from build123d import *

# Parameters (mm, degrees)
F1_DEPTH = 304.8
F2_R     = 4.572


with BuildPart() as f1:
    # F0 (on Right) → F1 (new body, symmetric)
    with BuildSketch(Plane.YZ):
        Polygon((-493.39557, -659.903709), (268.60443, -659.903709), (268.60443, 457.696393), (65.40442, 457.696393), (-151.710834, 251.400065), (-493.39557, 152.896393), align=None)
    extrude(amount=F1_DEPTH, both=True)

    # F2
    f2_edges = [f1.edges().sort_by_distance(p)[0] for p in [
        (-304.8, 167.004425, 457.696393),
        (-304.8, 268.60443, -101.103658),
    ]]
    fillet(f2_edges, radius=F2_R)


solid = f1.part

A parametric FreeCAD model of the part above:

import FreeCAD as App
import Part
import Sketcher

V = App.Vector
Q = App.Units.Quantity


def edges_at(feature, points):
    """Names of the edges that pass closest to the given points."""
    edges = feature.Shape.Edges
    near = lambda p: min(range(len(edges)), key=lambda i: edges[i].distToShape(Part.Vertex(*p))[0])
    return sorted({f"Edge{near(p) + 1}" for p in points})


def add_polygon(sketch, points):
    """Adds a closed chain of lines whose ends are joined by coincident constraints."""
    first, n = sketch.GeometryCount, len(points)
    for a, b in zip(points, points[1:] + points[:1]):
        sketch.addGeometry(Part.LineSegment(App.Vector(*a, 0), App.Vector(*b, 0)), False)
    for i in range(n):
        sketch.addConstraint(Sketcher.Constraint("Coincident", first + i, 2, first + (i + 1) % n, 1))

doc = App.newDocument("Part")
params = doc.addObject("Spreadsheet::Sheet", "Params")
for row, (alias, value) in enumerate([
    ("sketch1_width", "30 in"),
    ("pad1_length", "24 in"),
    ("fillet_radius", "0.18 in"),
], start=1):
    params.set(f"A{row}", alias)
    params.set(f"B{row}", "=" + value)
    params.setAlias(f"B{row}", alias)

body = doc.addObject("PartDesign::Body", "Body")

sketch1 = doc.addObject("Sketcher::SketchObject", "Sketch")
body.addObject(sketch1)
sketch1.AttachmentSupport = (doc.YZ_Plane, [""])
sketch1.MapMode = "FlatFace"
add_polygon(sketch1, [(-493, -660), (269, -660), (269, 458), (65, 458), (-152, 251), (-493, 153)])
sketch1.addConstraint([
    Sketcher.Constraint("Horizontal", 0),
    Sketcher.Constraint("Vertical", 1),
    Sketcher.Constraint("Horizontal", 2),
    Sketcher.Constraint("Vertical", 5),
    Sketcher.Constraint("DistanceX", 0, 1, 0, 2, Q("30 in")),
    Sketcher.Constraint("DistanceY", 4, 2, 2, 2, Q("12 in")),
    Sketcher.Constraint("DistanceY", 1, 1, 1, 2, Q("1117.600102 mm")),
    Sketcher.Constraint("Distance", 4, Q("355.600102 mm")),
    Sketcher.Constraint("DistanceX", 2, 2, 2, 1, Q("203.20001 mm")),
    Sketcher.Constraint("DistanceX", -1, 1, 0, 2, Q("268.60443 mm")),
    Sketcher.Constraint("DistanceY", 0, 2, -1, 1, Q("659.903709 mm")),
    Sketcher.Constraint("Distance", 3, Q("299.494922 mm")),
])
sketch1.setExpression("Constraints[10]", "Params.sketch1_width")
pad1 = doc.addObject("PartDesign::Pad", "Pad")
body.addObject(pad1)
pad1.Profile = sketch1
pad1.setExpression("Length", "Params.pad1_length")
pad1.Midplane = True
doc.recompute()

fillet = doc.addObject("PartDesign::Fillet", "Fillet")
body.addObject(fillet)
fillet.Base = (pad1, edges_at(pad1, [(-304.8, 167.004, 457.696), (-304.8, 268.604, -101.104)]))
fillet.setExpression("Radius", "Params.fillet_radius")

doc.recompute()
